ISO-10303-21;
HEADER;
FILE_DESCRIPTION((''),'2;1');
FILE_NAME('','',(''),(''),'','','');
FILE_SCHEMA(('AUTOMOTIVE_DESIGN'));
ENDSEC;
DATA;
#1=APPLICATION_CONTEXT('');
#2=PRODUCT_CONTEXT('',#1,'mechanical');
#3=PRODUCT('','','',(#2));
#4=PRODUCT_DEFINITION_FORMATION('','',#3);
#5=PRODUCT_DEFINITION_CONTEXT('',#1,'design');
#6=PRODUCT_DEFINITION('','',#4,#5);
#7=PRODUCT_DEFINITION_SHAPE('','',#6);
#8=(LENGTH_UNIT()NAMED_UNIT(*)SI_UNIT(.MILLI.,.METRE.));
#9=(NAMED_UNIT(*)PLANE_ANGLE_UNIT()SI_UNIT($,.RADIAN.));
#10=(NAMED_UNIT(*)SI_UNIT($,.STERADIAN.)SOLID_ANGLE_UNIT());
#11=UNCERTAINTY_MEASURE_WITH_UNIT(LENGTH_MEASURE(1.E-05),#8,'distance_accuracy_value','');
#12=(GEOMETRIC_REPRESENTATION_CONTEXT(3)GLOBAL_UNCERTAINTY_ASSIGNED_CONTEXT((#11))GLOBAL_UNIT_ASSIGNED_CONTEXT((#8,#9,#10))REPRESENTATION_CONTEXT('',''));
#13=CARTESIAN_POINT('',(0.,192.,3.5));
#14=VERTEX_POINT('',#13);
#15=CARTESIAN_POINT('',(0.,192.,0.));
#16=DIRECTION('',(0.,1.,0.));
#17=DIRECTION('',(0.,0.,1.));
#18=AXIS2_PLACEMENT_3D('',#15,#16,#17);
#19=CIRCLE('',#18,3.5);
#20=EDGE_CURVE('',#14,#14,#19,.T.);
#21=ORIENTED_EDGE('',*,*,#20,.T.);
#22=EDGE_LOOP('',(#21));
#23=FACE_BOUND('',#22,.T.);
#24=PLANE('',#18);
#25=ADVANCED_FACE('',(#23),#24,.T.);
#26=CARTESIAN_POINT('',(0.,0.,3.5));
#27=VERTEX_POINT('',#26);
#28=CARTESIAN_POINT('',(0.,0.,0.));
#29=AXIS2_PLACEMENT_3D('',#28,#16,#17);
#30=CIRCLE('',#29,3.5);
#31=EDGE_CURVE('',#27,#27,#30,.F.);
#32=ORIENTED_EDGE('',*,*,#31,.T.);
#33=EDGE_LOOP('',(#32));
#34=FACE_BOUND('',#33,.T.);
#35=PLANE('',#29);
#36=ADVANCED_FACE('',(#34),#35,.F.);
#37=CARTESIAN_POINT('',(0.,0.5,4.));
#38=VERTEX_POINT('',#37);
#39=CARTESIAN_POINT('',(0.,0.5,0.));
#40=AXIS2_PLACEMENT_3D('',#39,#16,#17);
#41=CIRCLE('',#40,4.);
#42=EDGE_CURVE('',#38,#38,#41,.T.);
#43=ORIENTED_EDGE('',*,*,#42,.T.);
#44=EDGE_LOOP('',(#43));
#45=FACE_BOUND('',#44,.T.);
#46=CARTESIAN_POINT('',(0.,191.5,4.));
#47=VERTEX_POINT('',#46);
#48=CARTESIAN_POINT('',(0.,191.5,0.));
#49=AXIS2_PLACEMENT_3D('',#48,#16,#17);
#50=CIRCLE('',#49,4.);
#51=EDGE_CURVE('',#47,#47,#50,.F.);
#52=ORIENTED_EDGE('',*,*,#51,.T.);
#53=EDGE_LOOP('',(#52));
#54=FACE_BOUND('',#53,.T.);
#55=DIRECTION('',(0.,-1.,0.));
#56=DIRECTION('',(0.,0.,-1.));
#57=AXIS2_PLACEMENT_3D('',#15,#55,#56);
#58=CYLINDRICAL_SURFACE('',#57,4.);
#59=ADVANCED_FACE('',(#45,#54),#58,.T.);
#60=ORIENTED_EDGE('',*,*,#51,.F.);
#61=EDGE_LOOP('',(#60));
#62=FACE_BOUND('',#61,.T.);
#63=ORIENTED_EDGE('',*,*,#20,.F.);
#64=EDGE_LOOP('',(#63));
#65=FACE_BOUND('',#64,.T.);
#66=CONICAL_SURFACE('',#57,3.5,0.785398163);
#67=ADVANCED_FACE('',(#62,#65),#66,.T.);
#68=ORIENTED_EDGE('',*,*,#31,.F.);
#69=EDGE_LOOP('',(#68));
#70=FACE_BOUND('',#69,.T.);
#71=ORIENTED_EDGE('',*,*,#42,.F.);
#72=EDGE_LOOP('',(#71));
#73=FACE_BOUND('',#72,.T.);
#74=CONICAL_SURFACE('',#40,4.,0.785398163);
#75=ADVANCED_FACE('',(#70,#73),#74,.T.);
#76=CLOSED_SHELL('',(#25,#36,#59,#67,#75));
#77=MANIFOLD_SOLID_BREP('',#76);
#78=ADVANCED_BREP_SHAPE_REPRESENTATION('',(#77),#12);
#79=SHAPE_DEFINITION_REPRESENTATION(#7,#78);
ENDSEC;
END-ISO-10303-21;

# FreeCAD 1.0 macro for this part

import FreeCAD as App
import Part
import Sketcher

V = App.Vector


def edges_at(feature, points):
    """Names of the edges that pass closest to the given points."""
    edges = feature.Shape.Edges
    near = lambda p: min(range(len(edges)), key=lambda i: edges[i].distToShape(Part.Vertex(*p))[0])
    return sorted({f"Edge{near(p) + 1}" for p in points})

doc = App.newDocument("Part")
body = doc.addObject("PartDesign::Body", "Body")

# Sketch on XZ plane
sketch1 = body.newObject("Sketcher::SketchObject", "Sketch")
sketch1.AttachmentSupport = (doc.getObject("XZ_Plane"), [""])
sketch1.MapMode = "FlatFace"
sketch1.addGeometry(Part.Circle(V(0, 0, 0), V(0, 0, 1), 4), False)
sketch1.addConstraint(Sketcher.Constraint("Coincident", 0, 3, -1, 1))
sketch1.addConstraint(Sketcher.Constraint("Diameter", 0, 8.0))
pad1 = body.newObject("PartDesign::Pad", "Pad")
pad1.Profile = sketch1
pad1.Length = 192
pad1.Reversed = True
doc.recompute()

chamfer = body.newObject("PartDesign::Chamfer", "Chamfer")
chamfer.Base = (pad1, edges_at(pad1, [(-4, 0, 0), (-4, 192, 0)]))
chamfer.Size = 0.5

doc.recompute()
